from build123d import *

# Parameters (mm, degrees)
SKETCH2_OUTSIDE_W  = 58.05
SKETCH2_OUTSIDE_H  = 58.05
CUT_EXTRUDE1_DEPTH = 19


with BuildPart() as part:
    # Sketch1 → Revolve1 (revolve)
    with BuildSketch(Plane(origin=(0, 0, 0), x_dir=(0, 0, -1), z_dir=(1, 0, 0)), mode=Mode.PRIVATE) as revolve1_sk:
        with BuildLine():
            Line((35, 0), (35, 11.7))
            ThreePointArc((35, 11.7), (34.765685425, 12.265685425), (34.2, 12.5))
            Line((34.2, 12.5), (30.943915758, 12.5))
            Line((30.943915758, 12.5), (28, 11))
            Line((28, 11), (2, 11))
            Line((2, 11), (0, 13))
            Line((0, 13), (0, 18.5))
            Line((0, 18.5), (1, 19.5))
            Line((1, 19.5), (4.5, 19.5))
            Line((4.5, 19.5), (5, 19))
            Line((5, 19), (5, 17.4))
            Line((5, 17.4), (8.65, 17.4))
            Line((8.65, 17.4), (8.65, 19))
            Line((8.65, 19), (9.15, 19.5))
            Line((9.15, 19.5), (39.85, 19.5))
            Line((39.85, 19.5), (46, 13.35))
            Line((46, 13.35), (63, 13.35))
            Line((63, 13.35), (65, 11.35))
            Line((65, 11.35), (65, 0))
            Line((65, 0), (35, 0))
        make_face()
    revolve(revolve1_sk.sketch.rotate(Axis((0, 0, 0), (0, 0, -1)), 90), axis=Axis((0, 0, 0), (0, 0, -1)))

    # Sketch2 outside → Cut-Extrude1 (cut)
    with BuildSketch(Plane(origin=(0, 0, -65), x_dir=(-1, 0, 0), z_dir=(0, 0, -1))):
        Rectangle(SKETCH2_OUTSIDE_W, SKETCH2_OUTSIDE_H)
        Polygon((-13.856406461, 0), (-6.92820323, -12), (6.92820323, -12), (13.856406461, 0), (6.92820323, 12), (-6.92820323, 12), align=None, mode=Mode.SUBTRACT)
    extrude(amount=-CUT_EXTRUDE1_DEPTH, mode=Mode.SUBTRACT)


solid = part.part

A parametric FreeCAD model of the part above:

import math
import FreeCAD as App
import Part
import Sketcher
from FreeCAD import Vector
Q = App.Units.Quantity

doc = App.newDocument("Part")
params = doc.addObject("Spreadsheet::Sheet", "Params")
for row, (alias, value) in enumerate([
    ("sketch1_radius", "0.8 mm"),
    ("sketch1_height", "30 mm"),
    ("sketch1_height2", "17 mm"),
    ("sketch1_height3", "26 mm"),
    ("sketch1_width", "11.7 mm"),
    ("revolution_angle", "360 deg"),
    ("sketch2_width", "58.05 mm"),
    ("pocket1_length", "19 mm"),
], start=1):
    params.set(f"A{row}", alias)
    params.set(f"B{row}", "=" + value)
    params.setAlias(f"B{row}", alias)

body = doc.addObject("PartDesign::Body", "Body")

# Sketch on YZ plane
sketch1 = doc.addObject("Sketcher::SketchObject", "Sketch")
body.addObject(sketch1)
sketch1.AttachmentSupport = (doc.YZ_Plane, [""])
sketch1.MapMode = "FlatFace"
sketch1.addGeometry([
    Part.LineSegment(Vector(11.7, -35, 0), Vector(0, -35, 0)),  # 0
    Part.LineSegment(Vector(0, -35, 0), Vector(0, -65, 0)),  # 1
    Part.LineSegment(Vector(0, -65, 0), Vector(11.3, -65, 0)),  # 2
    Part.LineSegment(Vector(11.3, -65, 0), Vector(13.3, -63, 0)),  # 3
    Part.LineSegment(Vector(13.3, -63, 0), Vector(13.3, -46, 0)),  # 4
    Part.LineSegment(Vector(13.3, -46, 0), Vector(19.5, -39.9, 0)),  # 5
    Part.LineSegment(Vector(19.5, -39.9, 0), Vector(19.5, -9.2, 0)),  # 6
    Part.LineSegment(Vector(19.5, -9.2, 0), Vector(19, -8.7, 0)),  # 7
    Part.LineSegment(Vector(19, -8.7, 0), Vector(17.4, -8.7, 0)),  # 8
    Part.LineSegment(Vector(17.4, -8.7, 0), Vector(17.4, -5, 0)),  # 9
    Part.LineSegment(Vector(17.4, -5, 0), Vector(19, -5, 0)),  # 10
    Part.LineSegment(Vector(19, -5, 0), Vector(19.5, -4.5, 0)),  # 11
    Part.LineSegment(Vector(19.5, -4.5, 0), Vector(19.5, -1, 0)),  # 12
    Part.LineSegment(Vector(19.5, -1, 0), Vector(18.5, 0, 0)),  # 13
    Part.LineSegment(Vector(18.5, 0, 0), Vector(13, 0, 0)),  # 14
    Part.LineSegment(Vector(13, 0, 0), Vector(11, -2, 0)),  # 15
    Part.LineSegment(Vector(11, -2, 0), Vector(11, -28, 0)),  # 16
    Part.LineSegment(Vector(11, -28, 0), Vector(12.5, -30.9, 0)),  # 17
    Part.LineSegment(Vector(12.5, -30.9, 0), Vector(12.5, -34.2, 0)),  # 18
    Part.ArcOfCircle(Part.Circle(Vector(11.7, -34.2, 0), Vector(0, 0, 1), 0.8), math.radians(-90), math.radians(0)),  # 19
], False)
sketch1.addConstraint([
    Sketcher.Constraint("Coincident", 0, 2, 1, 1),
    Sketcher.Constraint("Coincident", 1, 2, 2, 1),
    Sketcher.Constraint("Coincident", 2, 2, 3, 1),
    Sketcher.Constraint("Coincident", 3, 2, 4, 1),
    Sketcher.Constraint("Coincident", 4, 2, 5, 1),
    Sketcher.Constraint("Coincident", 5, 2, 6, 1),
    Sketcher.Constraint("Coincident", 6, 2, 7, 1),
    Sketcher.Constraint("Coincident", 7, 2, 8, 1),
    Sketcher.Constraint("Coincident", 8, 2, 9, 1),
    Sketcher.Constraint("Coincident", 9, 2, 10, 1),
    Sketcher.Constraint("Coincident", 10, 2, 11, 1),
    Sketcher.Constraint("Coincident", 11, 2, 12, 1),
    Sketcher.Constraint("Coincident", 12, 2, 13, 1),
    Sketcher.Constraint("Coincident", 13, 2, 14, 1),
    Sketcher.Constraint("Coincident", 14, 2, 15, 1),
    Sketcher.Constraint("Coincident", 15, 2, 16, 1),
    Sketcher.Constraint("Coincident", 16, 2, 17, 1),
    Sketcher.Constraint("Coincident", 17, 2, 18, 1),
    Sketcher.Constraint("Tangent", 18, 2, 19, 2),
    Sketcher.Constraint("Tangent", 19, 1, 0, 1),
    Sketcher.Constraint("Horizontal", 0),
    Sketcher.Constraint("Vertical", 1),
    Sketcher.Constraint("Horizontal", 2),
    Sketcher.Constraint("Vertical", 4),
    Sketcher.Constraint("Vertical", 6),
    Sketcher.Constraint("Horizontal", 8),
    Sketcher.Constraint("Vertical", 9),
    Sketcher.Constraint("Horizontal", 10),
    Sketcher.Constraint("Vertical", 12),
    Sketcher.Constraint("Horizontal", 14),
    Sketcher.Constraint("Vertical", 16),
    Sketcher.Constraint("Vertical", 18),
    Sketcher.Constraint("PointOnObject", 0, 2, -2),
    Sketcher.Constraint("PointOnObject", 13, 2, -1),
    Sketcher.Constraint("Parallel", 3, 5),
    Sketcher.Constraint("Perpendicular", 5, 7),
    Sketcher.Constraint("Perpendicular", 7, 11),
    Sketcher.Constraint("Perpendicular", 11, 13),
    Sketcher.Constraint("Perpendicular", 13, 15),
    Sketcher.Constraint("Vertical", 7, 2, 10, 2),
    Sketcher.Constraint("Vertical", 6, 2, 11, 2),
    Sketcher.Constraint("Equal", 7, 11),
    Sketcher.Constraint("Equal", 3, 15),
    Sketcher.Constraint("Radius", 19, 0.8),
    Sketcher.Constraint("DistanceY", 1, 2, 1, 1, 30.0),
    Sketcher.Constraint("DistanceY", 4, 1, 4, 2, 17.0),
    Sketcher.Constraint("DistanceY", 16, 2, 16, 1, 26.0),
    Sketcher.Constraint("Angle", 17, Q("-63 deg")),
    Sketcher.Constraint("DistanceX", 0, 2, 0, 1, 11.7),
    Sketcher.Constraint("DistanceX", 8, 2, 8, 1, 1.6),
    Sketcher.Constraint("DistanceX", 14, 2, 14, 1, 5.5),
    Sketcher.Constraint("DistanceY", 6, 1, 6, 2, 30.7),
    Sketcher.Constraint("DistanceY", 12, 1, 12, 2, 3.5),
    Sketcher.Constraint("DistanceY", 0, 2, -1, 1, 35.0),
    Sketcher.Constraint("DistanceY", 3, 2, -1, 1, 63.0),
    Sketcher.Constraint("DistanceX", -1, 1, 7, 2, 19.0),
    Sketcher.Constraint("DistanceY", 9, 2, -1, 1, 5.0),
    Sketcher.Constraint("DistanceY", 12, 2, -1, 1, 1.0),
    Sketcher.Constraint("DistanceX", 2, 1, 2, 2, 11.35),
])
sketch1.setExpression("Constraints[43]", "Params.sketch1_radius")
sketch1.setExpression("Constraints[44]", "Params.sketch1_height")
sketch1.setExpression("Constraints[45]", "Params.sketch1_height2")
sketch1.setExpression("Constraints[46]", "Params.sketch1_height3")
sketch1.setExpression("Constraints[48]", "Params.sketch1_width")
revolution = doc.addObject("PartDesign::Revolution", "Revolution")
body.addObject(revolution)
revolution.Profile = sketch1
revolution.ReferenceAxis = (sketch1, ["V_Axis"])
revolution.setExpression("Angle", "Params.revolution_angle")

# Sketch on XY plane
sketch2 = doc.addObject("Sketcher::SketchObject", "Sketch001")
body.addObject(sketch2)
sketch2.AttachmentSupport = (doc.XY_Plane, [""])
sketch2.MapMode = "FlatFace"
sketch2.AttachmentOffset = App.Placement(Vector(0, 0, -65), App.Rotation())
sketch2.addGeometry([
    Part.LineSegment(Vector(29, 29, 0), Vector(29, -29, 0)),  # 0
    Part.LineSegment(Vector(29, -29, 0), Vector(-29, -29, 0)),  # 1
    Part.LineSegment(Vector(-29, -29, 0), Vector(-29, 29, 0)),  # 2
    Part.LineSegment(Vector(-29, 29, 0), Vector(29, 29, 0)),  # 3
    Part.LineSegment(Vector(7, -12, 0), Vector(14, 0, 0)),  # 4
    Part.LineSegment(Vector(14, 0, 0), Vector(7, 12, 0)),  # 5
    Part.LineSegment(Vector(7, 12, 0), Vector(-7, 12, 0)),  # 6
    Part.LineSegment(Vector(-7, 12, 0), Vector(-14, 0, 0)),  # 7
    Part.LineSegment(Vector(-14, 0, 0), Vector(-7, -12, 0)),  # 8
    Part.LineSegment(Vector(-7, -12, 0), Vector(7, -12, 0)),  # 9
], False)
sketch2.addConstraint([
    Sketcher.Constraint("Coincident", 0, 2, 1, 1),
    Sketcher.Constraint("Coincident", 1, 2, 2, 1),
    Sketcher.Constraint("Coincident", 2, 2, 3, 1),
    Sketcher.Constraint("Coincident", 3, 2, 0, 1),
    Sketcher.Constraint("Coincident", 4, 2, 5, 1),
    Sketcher.Constraint("Coincident", 5, 2, 6, 1),
    Sketcher.Constraint("Coincident", 6, 2, 7, 1),
    Sketcher.Constraint("Coincident", 7, 2, 8, 1),
    Sketcher.Constraint("Coincident", 8, 2, 9, 1),
    Sketcher.Constraint("Coincident", 9, 2, 4, 1),
    Sketcher.Constraint("Vertical", 0),
    Sketcher.Constraint("Horizontal", 1),
    Sketcher.Constraint("Vertical", 2),
    Sketcher.Constraint("Horizontal", 3),
    Sketcher.Constraint("Horizontal", 6),
    Sketcher.Constraint("Horizontal", 9),
    Sketcher.Constraint("Symmetric", 0, 2, 2, 2, -1, 1),
    Sketcher.Constraint("Symmetric", 4, 2, 7, 2, -1, 1),
    Sketcher.Constraint("Symmetric", 5, 2, 8, 2, -1, 1),
    Sketcher.Constraint("PointOnObject", 4, 2, -1),
    Sketcher.Constraint("Parallel", 4, 7),
    Sketcher.Constraint("Vertical", 6, 2, 8, 2),
    Sketcher.Constraint("Equal", 3, 0),
    Sketcher.Constraint("Angle", 4, Q("60 deg")),
    Sketcher.Constraint("DistanceY", -1, 1, 5, 2, 12.0),
    Sketcher.Constraint("DistanceX", 1, 2, 1, 1, 58.05),
    Sketcher.Constraint("DistanceX", 6, 2, 6, 1, 13.856406),
])
sketch2.setExpression("Constraints[25]", "Params.sketch2_width")
pocket1 = doc.addObject("PartDesign::Pocket", "Pocket")
body.addObject(pocket1)
pocket1.Profile = sketch2
pocket1.setExpression("Length", "Params.pocket1_length")
pocket1.Reversed = True

doc.recompute()
